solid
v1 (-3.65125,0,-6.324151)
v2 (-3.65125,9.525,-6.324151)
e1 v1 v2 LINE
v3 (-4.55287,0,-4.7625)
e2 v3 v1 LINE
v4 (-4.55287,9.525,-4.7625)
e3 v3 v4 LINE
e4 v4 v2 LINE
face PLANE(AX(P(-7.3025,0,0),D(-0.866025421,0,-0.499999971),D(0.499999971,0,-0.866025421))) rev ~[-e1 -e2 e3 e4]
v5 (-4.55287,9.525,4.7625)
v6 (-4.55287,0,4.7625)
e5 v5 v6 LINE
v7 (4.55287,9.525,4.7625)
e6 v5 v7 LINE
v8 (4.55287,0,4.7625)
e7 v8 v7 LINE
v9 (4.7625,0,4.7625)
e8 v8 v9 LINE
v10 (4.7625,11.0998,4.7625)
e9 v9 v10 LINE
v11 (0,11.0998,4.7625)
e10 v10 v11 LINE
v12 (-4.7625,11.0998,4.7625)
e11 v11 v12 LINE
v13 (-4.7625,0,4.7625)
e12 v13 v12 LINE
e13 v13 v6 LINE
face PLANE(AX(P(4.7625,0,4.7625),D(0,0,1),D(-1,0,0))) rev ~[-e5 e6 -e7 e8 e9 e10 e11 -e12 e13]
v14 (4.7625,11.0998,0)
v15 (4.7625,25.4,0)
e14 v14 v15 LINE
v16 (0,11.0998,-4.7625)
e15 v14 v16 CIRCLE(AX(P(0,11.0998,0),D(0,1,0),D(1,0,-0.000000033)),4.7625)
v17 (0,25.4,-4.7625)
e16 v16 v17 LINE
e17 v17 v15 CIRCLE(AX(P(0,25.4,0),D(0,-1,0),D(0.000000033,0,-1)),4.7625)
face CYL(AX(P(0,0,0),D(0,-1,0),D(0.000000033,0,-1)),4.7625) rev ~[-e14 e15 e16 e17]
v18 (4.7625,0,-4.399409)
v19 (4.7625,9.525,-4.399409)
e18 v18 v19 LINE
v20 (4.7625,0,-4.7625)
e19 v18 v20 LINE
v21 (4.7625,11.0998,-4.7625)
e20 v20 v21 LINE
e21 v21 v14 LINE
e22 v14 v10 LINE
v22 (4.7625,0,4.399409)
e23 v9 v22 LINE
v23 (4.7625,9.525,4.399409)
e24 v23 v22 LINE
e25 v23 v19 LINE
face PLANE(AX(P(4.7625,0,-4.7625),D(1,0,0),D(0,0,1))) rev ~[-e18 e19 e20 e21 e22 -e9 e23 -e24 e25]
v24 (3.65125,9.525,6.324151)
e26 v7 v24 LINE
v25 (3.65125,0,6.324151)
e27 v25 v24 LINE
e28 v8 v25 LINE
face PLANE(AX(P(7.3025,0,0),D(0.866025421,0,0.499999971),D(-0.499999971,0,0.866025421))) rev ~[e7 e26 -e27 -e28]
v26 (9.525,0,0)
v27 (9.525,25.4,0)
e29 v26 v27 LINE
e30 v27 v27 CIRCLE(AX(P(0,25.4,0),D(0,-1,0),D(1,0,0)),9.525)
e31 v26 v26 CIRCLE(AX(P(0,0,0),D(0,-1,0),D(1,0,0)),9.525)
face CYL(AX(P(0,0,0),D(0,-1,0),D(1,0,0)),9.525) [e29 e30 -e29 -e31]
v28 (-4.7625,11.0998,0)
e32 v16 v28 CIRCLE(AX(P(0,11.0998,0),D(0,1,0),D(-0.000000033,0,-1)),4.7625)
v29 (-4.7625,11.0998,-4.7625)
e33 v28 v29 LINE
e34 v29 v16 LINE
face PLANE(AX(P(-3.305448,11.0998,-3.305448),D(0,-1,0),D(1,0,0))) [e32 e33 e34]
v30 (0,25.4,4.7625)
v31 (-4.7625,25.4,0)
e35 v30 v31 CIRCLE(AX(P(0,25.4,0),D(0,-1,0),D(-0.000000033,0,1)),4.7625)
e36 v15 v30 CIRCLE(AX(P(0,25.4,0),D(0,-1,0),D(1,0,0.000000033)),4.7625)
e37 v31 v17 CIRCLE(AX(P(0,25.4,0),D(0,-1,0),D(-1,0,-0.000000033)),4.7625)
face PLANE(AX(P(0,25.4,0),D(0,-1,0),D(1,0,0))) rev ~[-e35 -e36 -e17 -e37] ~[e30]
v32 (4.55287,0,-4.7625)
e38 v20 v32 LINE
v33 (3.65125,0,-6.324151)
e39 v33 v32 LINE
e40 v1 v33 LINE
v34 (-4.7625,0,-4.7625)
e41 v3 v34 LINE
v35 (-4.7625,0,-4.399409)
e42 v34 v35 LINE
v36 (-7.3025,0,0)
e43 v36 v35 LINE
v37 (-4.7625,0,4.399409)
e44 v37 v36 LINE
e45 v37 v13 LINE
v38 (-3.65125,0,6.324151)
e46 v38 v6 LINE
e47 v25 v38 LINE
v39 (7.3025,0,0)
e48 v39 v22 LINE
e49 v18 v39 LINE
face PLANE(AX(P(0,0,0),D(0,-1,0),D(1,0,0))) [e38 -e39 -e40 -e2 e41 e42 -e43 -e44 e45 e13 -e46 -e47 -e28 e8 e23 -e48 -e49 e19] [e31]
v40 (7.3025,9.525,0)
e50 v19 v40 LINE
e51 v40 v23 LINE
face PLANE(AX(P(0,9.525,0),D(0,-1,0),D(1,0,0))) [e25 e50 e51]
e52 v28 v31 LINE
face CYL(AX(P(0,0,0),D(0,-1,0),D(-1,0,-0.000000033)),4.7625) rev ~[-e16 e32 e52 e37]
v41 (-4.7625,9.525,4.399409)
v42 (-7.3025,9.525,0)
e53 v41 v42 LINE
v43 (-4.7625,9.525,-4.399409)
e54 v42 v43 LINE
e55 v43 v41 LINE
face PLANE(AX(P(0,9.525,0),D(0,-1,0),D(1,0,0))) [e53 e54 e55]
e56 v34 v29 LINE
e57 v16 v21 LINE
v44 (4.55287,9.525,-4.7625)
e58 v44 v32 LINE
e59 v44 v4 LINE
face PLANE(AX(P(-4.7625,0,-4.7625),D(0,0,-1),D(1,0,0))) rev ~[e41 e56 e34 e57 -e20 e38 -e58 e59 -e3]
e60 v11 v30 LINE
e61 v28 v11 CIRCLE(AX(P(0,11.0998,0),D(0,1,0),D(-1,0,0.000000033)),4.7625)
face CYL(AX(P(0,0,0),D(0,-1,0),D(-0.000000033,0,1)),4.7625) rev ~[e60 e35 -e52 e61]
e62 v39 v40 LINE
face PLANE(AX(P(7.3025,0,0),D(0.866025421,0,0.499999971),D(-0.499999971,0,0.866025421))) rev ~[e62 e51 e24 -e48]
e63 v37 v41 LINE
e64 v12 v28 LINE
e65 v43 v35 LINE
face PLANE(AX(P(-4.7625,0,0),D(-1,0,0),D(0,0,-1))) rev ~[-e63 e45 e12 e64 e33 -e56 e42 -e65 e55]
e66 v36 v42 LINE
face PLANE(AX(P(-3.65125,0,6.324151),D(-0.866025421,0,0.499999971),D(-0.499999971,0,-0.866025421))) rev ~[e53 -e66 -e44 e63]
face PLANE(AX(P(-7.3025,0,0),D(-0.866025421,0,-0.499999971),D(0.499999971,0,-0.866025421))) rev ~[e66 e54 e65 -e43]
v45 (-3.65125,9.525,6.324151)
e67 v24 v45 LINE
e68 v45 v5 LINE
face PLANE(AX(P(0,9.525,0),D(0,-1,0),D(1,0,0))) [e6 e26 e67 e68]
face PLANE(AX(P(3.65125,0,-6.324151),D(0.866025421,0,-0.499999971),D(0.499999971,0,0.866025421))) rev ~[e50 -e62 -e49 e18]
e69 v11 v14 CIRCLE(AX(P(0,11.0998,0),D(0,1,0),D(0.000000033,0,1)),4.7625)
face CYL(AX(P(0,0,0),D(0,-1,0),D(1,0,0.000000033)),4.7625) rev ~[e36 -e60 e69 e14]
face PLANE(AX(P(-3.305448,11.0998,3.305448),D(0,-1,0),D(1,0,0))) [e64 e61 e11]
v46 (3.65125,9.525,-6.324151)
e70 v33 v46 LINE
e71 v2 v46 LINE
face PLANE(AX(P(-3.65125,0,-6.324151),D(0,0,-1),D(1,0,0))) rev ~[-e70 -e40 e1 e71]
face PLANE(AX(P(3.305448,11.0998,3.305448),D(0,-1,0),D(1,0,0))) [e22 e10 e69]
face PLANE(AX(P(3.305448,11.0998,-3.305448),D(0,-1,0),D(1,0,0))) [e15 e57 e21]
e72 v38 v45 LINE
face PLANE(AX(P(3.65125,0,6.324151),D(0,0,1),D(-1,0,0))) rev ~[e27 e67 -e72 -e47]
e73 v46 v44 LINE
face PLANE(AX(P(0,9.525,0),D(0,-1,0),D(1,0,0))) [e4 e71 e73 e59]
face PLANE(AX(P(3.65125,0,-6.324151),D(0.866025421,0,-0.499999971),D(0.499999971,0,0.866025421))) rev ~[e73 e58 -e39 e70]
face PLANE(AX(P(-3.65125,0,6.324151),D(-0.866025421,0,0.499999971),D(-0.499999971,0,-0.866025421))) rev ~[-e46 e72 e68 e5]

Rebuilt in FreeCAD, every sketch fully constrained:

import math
import FreeCAD as App
import Part
import Sketcher
Q = App.Units.Quantity


def add_polygon(sketch, points):
    """Adds a closed chain of lines whose ends are joined by coincident constraints."""
    first, n = sketch.GeometryCount, len(points)
    for a, b in zip(points, points[1:] + points[:1]):
        sketch.addGeometry(Part.LineSegment(App.Vector(*a, 0), App.Vector(*b, 0)), False)
    for i in range(n):
        sketch.addConstraint(Sketcher.Constraint("Coincident", first + i, 2, first + (i + 1) % n, 1))

doc = App.newDocument("Part")
body = doc.addObject("PartDesign::Body", "Body")

# Sketch on XZ plane
sketch1 = body.newObject("Sketcher::SketchObject", "Sketch")
sketch1.AttachmentSupport = (doc.getObject("XZ_Plane"), [""])
sketch1.MapMode = "FlatFace"
sketch1.addGeometry(Part.Circle(App.Vector(0, 0, 0), App.Vector(0, 0, 1), 9.525), False)
sketch1.addConstraint([
    Sketcher.Constraint("Coincident", 0, 3, -1, 1),
    Sketcher.Constraint("Diameter", 0, Q("0.75 in")),
])
pad1 = body.newObject("PartDesign::Pad", "Pad")
pad1.Profile = sketch1
pad1.Length = Q("1 in")
pad1.Reversed = True

# Sketch on XZ plane
sketch2 = body.newObject("Sketcher::SketchObject", "Sketch001")
sketch2.AttachmentSupport = (doc.getObject("XZ_Plane"), [""])
sketch2.MapMode = "FlatFace"
sketch2.addGeometry([
    Part.ArcOfCircle(Part.Circle(App.Vector(0, 0, 0), App.Vector(0, 0, 1), 4.7625), math.radians(-179.999998), math.radians(-90.000002)),
    Part.ArcOfCircle(Part.Circle(App.Vector(0, 0, 0), App.Vector(0, 0, 1), 4.7625), math.radians(-89.999998), math.radians(-0.000002)),
    Part.ArcOfCircle(Part.Circle(App.Vector(0, 0, 0), App.Vector(0, 0, 1), 4.7625), math.radians(0.000002), math.radians(89.999998)),
    Part.ArcOfCircle(Part.Circle(App.Vector(0, 0, 0), App.Vector(0, 0, 1), 4.7625), math.radians(90.000002), math.radians(179.999998)),
], False)
sketch2.addConstraint([
    Sketcher.Constraint("Tangent", 0, 2, 1, 1),
    Sketcher.Constraint("Tangent", 1, 2, 2, 1),
    Sketcher.Constraint("Tangent", 2, 2, 3, 1),
    Sketcher.Constraint("Tangent", 3, 2, 0, 1),
    Sketcher.Constraint("Coincident", 0, 3, -1, 1),
    Sketcher.Constraint("Equal", 0, 1),
    Sketcher.Constraint("PointOnObject", 0, 2, -2),
    Sketcher.Constraint("PointOnObject", 1, 2, -1),
    Sketcher.Constraint("PointOnObject", 2, 2, -2),
    Sketcher.Constraint("PointOnObject", 3, 2, -1),
    Sketcher.Constraint("Radius", 0, Q("0.1875 in")),
])
pocket1 = body.newObject("PartDesign::Pocket", "Pocket")
pocket1.Profile = sketch2
pocket1.Type = "ThroughAll"

# Sketch on XZ plane
sketch3 = body.newObject("Sketcher::SketchObject", "Sketch002")
sketch3.AttachmentSupport = (doc.getObject("XZ_Plane"), [""])
sketch3.MapMode = "FlatFace"
sketch3.addGeometry([
    Part.LineSegment(App.Vector(0, -4.7625, 0), App.Vector(4.7625, -4.7625, 0)),  # 0
    Part.LineSegment(App.Vector(4.7625, -4.7625, 0), App.Vector(4.7625, 0, 0)),  # 1
    Part.ArcOfCircle(Part.Circle(App.Vector(0, 0, 0), App.Vector(0, 0, 1), 4.7625), math.radians(-89.999998), math.radians(-0.000002)),  # 2
    Part.LineSegment(App.Vector(-4.7625, -4.7625, 0), App.Vector(0, -4.7625, 0)),  # 3
    Part.ArcOfCircle(Part.Circle(App.Vector(0, 0, 0), App.Vector(0, 0, 1), 4.7625), math.radians(-179.999998), math.radians(-90.000002)),  # 4
    Part.LineSegment(App.Vector(-4.7625, 0, 0), App.Vector(-4.7625, -4.7625, 0)),  # 5
    Part.ArcOfCircle(Part.Circle(App.Vector(0, 0, 0), App.Vector(0, 0, 1), 4.7625), math.radians(0.000002), math.radians(89.999998)),  # 6
    Part.LineSegment(App.Vector(4.7625, 0, 0), App.Vector(4.7625, 4.7625, 0)),  # 7
    Part.LineSegment(App.Vector(4.7625, 4.7625, 0), App.Vector(0, 4.7625, 0)),  # 8
    Part.LineSegment(App.Vector(-4.7625, 4.7625, 0), App.Vector(-4.7625, 0, 0)),  # 9
    Part.ArcOfCircle(Part.Circle(App.Vector(0, 0, 0), App.Vector(0, 0, 1), 4.7625), math.radians(90.000002), math.radians(179.999998)),  # 10
    Part.LineSegment(App.Vector(0, 4.7625, 0), App.Vector(-4.7625, 4.7625, 0)),  # 11
], False)
sketch3.addConstraint([
    Sketcher.Constraint("Coincident", 0, 2, 1, 1),
    Sketcher.Constraint("Tangent", 1, 2, 2, 2),
    Sketcher.Constraint("Tangent", 2, 1, 0, 1),
    Sketcher.Constraint("Tangent", 3, 2, 4, 2),
    Sketcher.Constraint("Tangent", 4, 1, 5, 1),
    Sketcher.Constraint("Coincident", 5, 2, 3, 1),
    Sketcher.Constraint("Tangent", 6, 1, 7, 1),
    Sketcher.Constraint("Coincident", 7, 2, 8, 1),
    Sketcher.Constraint("Tangent", 8, 2, 6, 2),
    Sketcher.Constraint("Tangent", 9, 2, 10, 2),
    Sketcher.Constraint("Tangent", 10, 1, 11, 1),
    Sketcher.Constraint("Coincident", 11, 2, 9, 1),
    Sketcher.Constraint("Horizontal", 0),
    Sketcher.Constraint("Vertical", 1),
    Sketcher.Constraint("Horizontal", 3),
    Sketcher.Constraint("Vertical", 5),
    Sketcher.Constraint("Vertical", 7),
    Sketcher.Constraint("Horizontal", 8),
    Sketcher.Constraint("Vertical", 9),
    Sketcher.Constraint("Horizontal", 11),
    Sketcher.Constraint("Coincident", 2, 3, -1, 1),
    Sketcher.Constraint("Coincident", 4, 3, -1, 1),
    Sketcher.Constraint("Coincident", 6, 3, -1, 1),
    Sketcher.Constraint("Coincident", 10, 3, -1, 1),
    Sketcher.Constraint("Equal", 2, 4),
    Sketcher.Constraint("Equal", 4, 6),
    Sketcher.Constraint("Equal", 6, 10),
    Sketcher.Constraint("Radius", 2, Q("0.1875 in")),
])
pocket2 = body.newObject("PartDesign::Pocket", "Pocket001")
pocket2.Profile = sketch3
pocket2.Length = Q("0.437 in")

# Sketch on XZ plane
sketch4 = body.newObject("Sketcher::SketchObject", "Sketch003")
sketch4.AttachmentSupport = (doc.getObject("XZ_Plane"), [""])
sketch4.MapMode = "FlatFace"
add_polygon(sketch4, [(3.65125, -6.324151), (7.3025, 0), (3.65125, 6.324151), (-3.65125, 6.324151), (-7.3025, 0), (-3.65125, -6.324151)])  # lines 0-5
sketch4.addConstraint([
    Sketcher.Constraint("Horizontal", 2),
    Sketcher.Constraint("Horizontal", 5),
    Sketcher.Constraint("Symmetric", 0, 2, 3, 2, -1, 1),
    Sketcher.Constraint("Symmetric", 1, 2, 4, 2, -1, 1),
    Sketcher.Constraint("PointOnObject", 0, 2, -1),
    Sketcher.Constraint("Parallel", 0, 3),
    Sketcher.Constraint("Vertical", 2, 2, 4, 2),
    Sketcher.Constraint("Angle", 0, Q("60.000002 deg")),
    Sketcher.Constraint("DistanceX", 2, 2, 2, 1, Q("0.2875 in")),
    Sketcher.Constraint("DistanceX", 3, 2, 0, 2, Q("0.575 in")),
])
pocket3 = body.newObject("PartDesign::Pocket", "Pocket002")
pocket3.Profile = sketch4
pocket3.Length = Q("0.375 in")

doc.recompute()
